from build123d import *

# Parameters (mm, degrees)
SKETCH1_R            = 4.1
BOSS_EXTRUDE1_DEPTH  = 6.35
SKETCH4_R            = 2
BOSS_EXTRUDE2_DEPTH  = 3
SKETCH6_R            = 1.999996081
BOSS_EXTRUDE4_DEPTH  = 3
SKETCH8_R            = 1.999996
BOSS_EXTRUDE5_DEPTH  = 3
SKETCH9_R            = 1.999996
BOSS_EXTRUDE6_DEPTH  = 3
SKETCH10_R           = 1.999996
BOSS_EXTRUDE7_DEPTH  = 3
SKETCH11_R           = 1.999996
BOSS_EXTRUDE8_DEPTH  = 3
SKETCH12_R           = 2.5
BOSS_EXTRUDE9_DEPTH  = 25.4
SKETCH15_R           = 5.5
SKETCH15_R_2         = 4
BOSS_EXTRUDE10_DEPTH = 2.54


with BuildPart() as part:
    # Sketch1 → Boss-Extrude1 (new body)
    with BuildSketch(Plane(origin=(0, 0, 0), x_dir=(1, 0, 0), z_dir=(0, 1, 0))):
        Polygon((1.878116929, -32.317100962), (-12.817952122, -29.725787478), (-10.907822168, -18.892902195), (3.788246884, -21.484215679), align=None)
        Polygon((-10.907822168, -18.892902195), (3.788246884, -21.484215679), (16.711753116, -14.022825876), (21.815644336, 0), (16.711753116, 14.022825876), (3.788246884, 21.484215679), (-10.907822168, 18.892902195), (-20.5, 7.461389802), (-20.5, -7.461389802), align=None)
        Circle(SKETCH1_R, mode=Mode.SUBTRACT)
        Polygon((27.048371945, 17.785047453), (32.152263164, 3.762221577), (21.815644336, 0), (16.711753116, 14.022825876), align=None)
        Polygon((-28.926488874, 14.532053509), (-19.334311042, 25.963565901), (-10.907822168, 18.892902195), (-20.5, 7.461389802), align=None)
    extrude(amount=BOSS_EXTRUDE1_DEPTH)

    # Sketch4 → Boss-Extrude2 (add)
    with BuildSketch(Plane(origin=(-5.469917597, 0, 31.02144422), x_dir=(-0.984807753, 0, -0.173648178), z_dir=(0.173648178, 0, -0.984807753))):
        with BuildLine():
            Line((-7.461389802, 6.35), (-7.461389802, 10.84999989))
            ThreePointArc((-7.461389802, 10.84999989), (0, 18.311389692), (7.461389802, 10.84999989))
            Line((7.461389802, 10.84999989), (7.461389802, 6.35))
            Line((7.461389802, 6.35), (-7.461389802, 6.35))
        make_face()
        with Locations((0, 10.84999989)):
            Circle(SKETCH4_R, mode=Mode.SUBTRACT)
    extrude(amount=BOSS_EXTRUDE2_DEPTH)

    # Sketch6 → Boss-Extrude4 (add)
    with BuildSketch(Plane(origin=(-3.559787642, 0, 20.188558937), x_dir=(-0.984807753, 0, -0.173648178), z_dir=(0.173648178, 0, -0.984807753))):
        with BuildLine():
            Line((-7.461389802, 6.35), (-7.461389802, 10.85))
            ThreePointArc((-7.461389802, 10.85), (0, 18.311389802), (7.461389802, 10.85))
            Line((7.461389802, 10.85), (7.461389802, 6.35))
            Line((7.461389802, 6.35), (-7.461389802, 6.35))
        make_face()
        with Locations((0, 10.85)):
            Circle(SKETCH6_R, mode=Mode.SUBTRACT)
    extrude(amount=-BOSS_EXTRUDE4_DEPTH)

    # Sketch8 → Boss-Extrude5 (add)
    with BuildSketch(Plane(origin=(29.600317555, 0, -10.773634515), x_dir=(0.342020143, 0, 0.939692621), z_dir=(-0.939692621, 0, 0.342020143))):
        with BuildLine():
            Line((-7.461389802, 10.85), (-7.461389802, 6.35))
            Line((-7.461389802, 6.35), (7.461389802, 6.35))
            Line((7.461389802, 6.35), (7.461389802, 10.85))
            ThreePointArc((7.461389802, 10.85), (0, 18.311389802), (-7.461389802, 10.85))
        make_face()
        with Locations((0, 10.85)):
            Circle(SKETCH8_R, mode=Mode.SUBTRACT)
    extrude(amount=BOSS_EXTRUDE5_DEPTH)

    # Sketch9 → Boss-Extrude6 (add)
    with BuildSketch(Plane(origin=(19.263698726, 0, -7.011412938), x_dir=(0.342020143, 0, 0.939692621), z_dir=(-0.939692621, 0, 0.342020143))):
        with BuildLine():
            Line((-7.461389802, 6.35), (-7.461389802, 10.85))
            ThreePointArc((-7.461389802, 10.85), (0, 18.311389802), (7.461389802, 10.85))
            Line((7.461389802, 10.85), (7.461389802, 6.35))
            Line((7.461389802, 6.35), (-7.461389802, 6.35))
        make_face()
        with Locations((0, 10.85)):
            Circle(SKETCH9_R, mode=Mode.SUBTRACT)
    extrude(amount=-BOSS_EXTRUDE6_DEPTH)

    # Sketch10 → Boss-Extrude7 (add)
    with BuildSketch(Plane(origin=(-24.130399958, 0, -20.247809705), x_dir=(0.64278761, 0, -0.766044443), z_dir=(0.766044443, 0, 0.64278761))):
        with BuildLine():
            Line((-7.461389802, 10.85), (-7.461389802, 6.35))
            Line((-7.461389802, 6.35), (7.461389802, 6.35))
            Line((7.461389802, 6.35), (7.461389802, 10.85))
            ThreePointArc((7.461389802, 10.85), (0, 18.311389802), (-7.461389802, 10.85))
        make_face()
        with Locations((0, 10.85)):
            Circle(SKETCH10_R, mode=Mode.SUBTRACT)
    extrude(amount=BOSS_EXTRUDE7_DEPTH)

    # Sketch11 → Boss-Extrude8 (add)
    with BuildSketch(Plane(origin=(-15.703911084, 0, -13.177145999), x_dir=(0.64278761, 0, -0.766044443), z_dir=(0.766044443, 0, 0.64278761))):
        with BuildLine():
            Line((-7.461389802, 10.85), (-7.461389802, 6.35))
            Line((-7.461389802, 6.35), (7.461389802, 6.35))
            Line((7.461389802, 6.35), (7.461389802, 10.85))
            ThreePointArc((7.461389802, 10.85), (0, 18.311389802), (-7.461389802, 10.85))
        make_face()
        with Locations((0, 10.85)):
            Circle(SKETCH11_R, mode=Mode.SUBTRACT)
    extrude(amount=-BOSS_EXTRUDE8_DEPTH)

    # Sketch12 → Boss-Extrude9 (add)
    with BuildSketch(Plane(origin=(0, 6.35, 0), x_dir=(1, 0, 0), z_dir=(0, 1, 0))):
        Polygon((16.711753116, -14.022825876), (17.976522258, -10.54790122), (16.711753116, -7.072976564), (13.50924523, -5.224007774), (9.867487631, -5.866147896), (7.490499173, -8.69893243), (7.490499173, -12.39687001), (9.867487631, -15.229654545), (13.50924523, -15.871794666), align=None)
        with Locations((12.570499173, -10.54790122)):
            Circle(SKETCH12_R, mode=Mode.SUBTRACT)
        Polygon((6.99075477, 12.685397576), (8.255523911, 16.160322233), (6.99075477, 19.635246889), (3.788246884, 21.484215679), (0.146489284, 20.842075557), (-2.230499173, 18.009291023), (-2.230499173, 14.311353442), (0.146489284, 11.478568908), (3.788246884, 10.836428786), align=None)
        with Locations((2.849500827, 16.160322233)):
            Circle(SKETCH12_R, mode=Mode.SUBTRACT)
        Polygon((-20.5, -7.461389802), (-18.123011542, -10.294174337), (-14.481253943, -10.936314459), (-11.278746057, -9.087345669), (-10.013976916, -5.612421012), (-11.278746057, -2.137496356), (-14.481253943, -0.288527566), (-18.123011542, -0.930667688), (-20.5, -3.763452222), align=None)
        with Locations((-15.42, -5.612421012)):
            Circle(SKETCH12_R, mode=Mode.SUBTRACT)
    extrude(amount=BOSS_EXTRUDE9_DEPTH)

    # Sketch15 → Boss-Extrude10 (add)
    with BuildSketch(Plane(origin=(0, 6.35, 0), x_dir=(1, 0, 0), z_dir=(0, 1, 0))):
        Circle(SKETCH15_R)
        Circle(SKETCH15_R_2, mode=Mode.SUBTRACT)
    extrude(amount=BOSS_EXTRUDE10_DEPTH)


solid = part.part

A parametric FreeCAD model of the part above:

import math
import FreeCAD as App
import Part
import Sketcher
Q = App.Units.Quantity


def add_polygon(sketch, points):
    """Adds a closed chain of lines whose ends are joined by coincident constraints."""
    first, n = sketch.GeometryCount, len(points)
    for a, b in zip(points, points[1:] + points[:1]):
        sketch.addGeometry(Part.LineSegment(App.Vector(*a, 0), App.Vector(*b, 0)), False)
    for i in range(n):
        sketch.addConstraint(Sketcher.Constraint("Coincident", first + i, 2, first + (i + 1) % n, 1))

doc = App.newDocument("Part")
body = doc.addObject("PartDesign::Body", "Body")

# Sketch on XZ plane
sketch1 = doc.addObject("Sketcher::SketchObject", "Sketch")
body.addObject(sketch1)
sketch1.AttachmentSupport = (doc.XZ_Plane, [""])
sketch1.MapMode = "FlatFace"
add_polygon(sketch1, [(-12.8, 29.7), (1.9, 32.3), (3.8, 21.5), (16.7, 14), (21.8, 0), (32.2, -3.8), (27, -17.8), (16.7, -14), (3.8, -21.5), (-10.9, -18.9), (-19.3, -26), (-28.9, -14.5), (-20.5, -7.5), (-20.5, 7.5), (-10.9, 18.9)])  # lines 0-14
sketch1.addGeometry(Part.Circle(App.Vector(0, 0, 0), App.Vector(0, 0, 1), 4.1), False)  # 15
sketch1.addConstraint([
    Sketcher.Constraint("Vertical", 12),
    Sketcher.Constraint("Coincident", 15, 3, -1, 1),
    Sketcher.Constraint("Symmetric", 2, 2, 6, 2, -1),
    Sketcher.Constraint("Symmetric", 1, 2, 7, 2, -1),
    Sketcher.Constraint("Symmetric", 8, 2, 13, 2, -1),
    Sketcher.Constraint("PointOnObject", 3, 2, -1),
    Sketcher.Constraint("Perpendicular", 0, 1),
    Sketcher.Constraint("Perpendicular", 4, 5),
    Sketcher.Constraint("Perpendicular", 5, 6),
    Sketcher.Constraint("Perpendicular", 9, 10),
    Sketcher.Constraint("Perpendicular", 10, 11),
    Sketcher.Constraint("Parallel", 1, 14),
    Sketcher.Constraint("Equal", 0, 2),
    Sketcher.Constraint("Equal", 2, 3),
    Sketcher.Constraint("Equal", 1, 4),
    Sketcher.Constraint("Equal", 4, 6),
    Sketcher.Constraint("Equal", 6, 9),
    Sketcher.Constraint("Equal", 8, 10),
    Sketcher.Constraint("Equal", 9, 11),
    Sketcher.Constraint("Equal", 10, 13),
    Sketcher.Constraint("Equal", 11, 14),
    Sketcher.Constraint("Diameter", 15, Q("8.2 mm")),
    Sketcher.Constraint("Angle", 0, Q("10 deg")),
    Sketcher.Constraint("Angle", 2, Q("-30 deg")),
    Sketcher.Constraint("Angle", 3, Q("-70 deg")),
    Sketcher.Constraint("Angle", 9, Q("-140 deg")),
    Sketcher.Constraint("Distance", 1, Q("11 mm")),
    Sketcher.Constraint("DistanceX", 11, 2, -1, 1, Q("20.5 mm")),
    Sketcher.Constraint("DistanceY", 12, 1, 12, 2, Q("14.92278 mm")),
])
pad1 = doc.addObject("PartDesign::Pad", "Pad")
body.addObject(pad1)
pad1.Profile = sketch1
pad1.Length = 6.35
pad1.Reversed = True

# Sketch on an angled plane
sketch2 = doc.addObject("Sketcher::SketchObject", "Sketch001")
body.addObject(sketch2)
sketch2.Placement = App.Placement(App.Vector(-5.469918, 0, 31.021444), App.Rotation(App.Vector(-0.984807753, 0, -0.173648178), App.Vector(0, 1, 0), App.Vector(0.173648178, 0, -0.984807753), "ZXY"))
sketch2.addGeometry([
    Part.LineSegment(App.Vector(-7.5, 10.8, 0), App.Vector(-7.5, 6.4, 0)),  # 0
    Part.LineSegment(App.Vector(-7.5, 6.4, 0), App.Vector(7.5, 6.4, 0)),  # 1
    Part.LineSegment(App.Vector(7.5, 6.4, 0), App.Vector(7.5, 10.8, 0)),  # 2
    Part.ArcOfCircle(Part.Circle(App.Vector(0, 10.8, 0), App.Vector(0, 0, 1), 7.5), math.radians(0), math.radians(180)),  # 3
    Part.Circle(App.Vector(0, 10.8, 0), App.Vector(0, 0, 1), 2),  # 4
], False)
sketch2.addConstraint([
    Sketcher.Constraint("Coincident", 0, 2, 1, 1),
    Sketcher.Constraint("Coincident", 1, 2, 2, 1),
    Sketcher.Constraint("Tangent", 2, 2, 3, 1),
    Sketcher.Constraint("Tangent", 3, 2, 0, 1),
    Sketcher.Constraint("Vertical", 0),
    Sketcher.Constraint("Horizontal", 1),
    Sketcher.Constraint("Vertical", 2),
    Sketcher.Constraint("Coincident", 4, 3, 3, 3),
    Sketcher.Constraint("PointOnObject", 3, 3, -2),
    Sketcher.Constraint("Diameter", 4, Q("4 mm")),
    Sketcher.Constraint("DistanceY", 0, 2, 0, 1, Q("4.5 mm")),
    Sketcher.Constraint("DistanceY", -1, 1, 3, 3, Q("10.85 mm")),
    Sketcher.Constraint("Radius", 3, Q("7.46139 mm")),
])
pad2 = doc.addObject("PartDesign::Pad", "Pad001")
body.addObject(pad2)
pad2.Profile = sketch2
pad2.Length = 3

# Sketch on an angled plane
sketch3 = doc.addObject("Sketcher::SketchObject", "Sketch002")
body.addObject(sketch3)
sketch3.Placement = App.Placement(App.Vector(-3.559788, 0, 20.188559), App.Rotation(App.Vector(-0.984807753, 0, -0.173648178), App.Vector(0, 1, 0), App.Vector(0.173648178, 0, -0.984807753), "ZXY"))
sketch3.addGeometry([
    Part.LineSegment(App.Vector(-7.5, 10.9, 0), App.Vector(-7.5, 6.4, 0)),  # 0
    Part.LineSegment(App.Vector(-7.5, 6.4, 0), App.Vector(7.5, 6.4, 0)),  # 1
    Part.LineSegment(App.Vector(7.5, 6.4, 0), App.Vector(7.5, 10.9, 0)),  # 2
    Part.ArcOfCircle(Part.Circle(App.Vector(0, 10.9, 0), App.Vector(0, 0, 1), 7.5), math.radians(0), math.radians(180)),  # 3
    Part.Circle(App.Vector(0, 10.9, 0), App.Vector(0, 0, 1), 2),  # 4
], False)
sketch3.addConstraint([
    Sketcher.Constraint("Coincident", 0, 2, 1, 1),
    Sketcher.Constraint("Coincident", 1, 2, 2, 1),
    Sketcher.Constraint("Tangent", 2, 2, 3, 1),
    Sketcher.Constraint("Tangent", 3, 2, 0, 1),
    Sketcher.Constraint("Vertical", 0),
    Sketcher.Constraint("Horizontal", 1),
    Sketcher.Constraint("Vertical", 2),
    Sketcher.Constraint("Coincident", 4, 3, 3, 3),
    Sketcher.Constraint("PointOnObject", 3, 3, -2),
    Sketcher.Constraint("DistanceY", 0, 2, 0, 1, Q("4.5 mm")),
    Sketcher.Constraint("DistanceY", -1, 1, 3, 3, Q("10.85 mm")),
    Sketcher.Constraint("Radius", 3, Q("7.46139 mm")),
    Sketcher.Constraint("Diameter", 4, Q("3.999992 mm")),
])
pad3 = doc.addObject("PartDesign::Pad", "Pad002")
body.addObject(pad3)
pad3.Profile = sketch3
pad3.Length = 3
pad3.Reversed = True

# Sketch on an angled plane
sketch4 = doc.addObject("Sketcher::SketchObject", "Sketch003")
body.addObject(sketch4)
sketch4.Placement = App.Placement(App.Vector(29.600318, 0, -10.773635), App.Rotation(App.Vector(0.342020143, 0, 0.939692621), App.Vector(0, 1, 0), App.Vector(-0.939692621, 0, 0.342020143), "ZXY"))
sketch4.addGeometry([
    Part.LineSegment(App.Vector(-7.5, 10.9, 0), App.Vector(-7.5, 6.4, 0)),  # 0
    Part.LineSegment(App.Vector(-7.5, 6.4, 0), App.Vector(7.5, 6.4, 0)),  # 1
    Part.LineSegment(App.Vector(7.5, 6.4, 0), App.Vector(7.5, 10.9, 0)),  # 2
    Part.ArcOfCircle(Part.Circle(App.Vector(0, 10.9, 0), App.Vector(0, 0, 1), 7.5), math.radians(0), math.radians(180)),  # 3
    Part.Circle(App.Vector(0, 10.9, 0), App.Vector(0, 0, 1), 2),  # 4
], False)
sketch4.addConstraint([
    Sketcher.Constraint("Coincident", 0, 2, 1, 1),
    Sketcher.Constraint("Coincident", 1, 2, 2, 1),
    Sketcher.Constraint("Tangent", 2, 2, 3, 1),
    Sketcher.Constraint("Tangent", 3, 2, 0, 1),
    Sketcher.Constraint("Vertical", 0),
    Sketcher.Constraint("Horizontal", 1),
    Sketcher.Constraint("Vertical", 2),
    Sketcher.Constraint("Coincident", 4, 3, 3, 3),
    Sketcher.Constraint("PointOnObject", 3, 3, -2),
    Sketcher.Constraint("DistanceY", 0, 2, 0, 1, Q("4.5 mm")),
    Sketcher.Constraint("DistanceY", -1, 1, 3, 3, Q("10.85 mm")),
    Sketcher.Constraint("Radius", 3, Q("7.46139 mm")),
    Sketcher.Constraint("Diameter", 4, Q("3.999992 mm")),
])
pad4 = doc.addObject("PartDesign::Pad", "Pad003")
body.addObject(pad4)
pad4.Profile = sketch4
pad4.Length = 3

# Sketch on an angled plane
sketch5 = doc.addObject("Sketcher::SketchObject", "Sketch004")
body.addObject(sketch5)
sketch5.Placement = App.Placement(App.Vector(19.263699, 0, -7.011413), App.Rotation(App.Vector(0.342020143, 0, 0.939692621), App.Vector(0, 1, 0), App.Vector(-0.939692621, 0, 0.342020143), "ZXY"))
sketch5.addGeometry([
    Part.LineSegment(App.Vector(-7.5, 10.9, 0), App.Vector(-7.5, 6.4, 0)),  # 0
    Part.LineSegment(App.Vector(-7.5, 6.4, 0), App.Vector(7.5, 6.4, 0)),  # 1
    Part.LineSegment(App.Vector(7.5, 6.4, 0), App.Vector(7.5, 10.9, 0)),  # 2
    Part.ArcOfCircle(Part.Circle(App.Vector(0, 10.9, 0), App.Vector(0, 0, 1), 7.5), math.radians(0), math.radians(180)),  # 3
    Part.Circle(App.Vector(0, 10.9, 0), App.Vector(0, 0, 1), 2),  # 4
], False)
sketch5.addConstraint([
    Sketcher.Constraint("Coincident", 0, 2, 1, 1),
    Sketcher.Constraint("Coincident", 1, 2, 2, 1),
    Sketcher.Constraint("Tangent", 2, 2, 3, 1),
    Sketcher.Constraint("Tangent", 3, 2, 0, 1),
    Sketcher.Constraint("Vertical", 0),
    Sketcher.Constraint("Horizontal", 1),
    Sketcher.Constraint("Vertical", 2),
    Sketcher.Constraint("Coincident", 4, 3, 3, 3),
    Sketcher.Constraint("PointOnObject", 3, 3, -2),
    Sketcher.Constraint("DistanceY", 0, 2, 0, 1, Q("4.5 mm")),
    Sketcher.Constraint("DistanceY", -1, 1, 3, 3, Q("10.85 mm")),
    Sketcher.Constraint("Radius", 3, Q("7.46139 mm")),
    Sketcher.Constraint("Diameter", 4, Q("3.999992 mm")),
])
pad5 = doc.addObject("PartDesign::Pad", "Pad004")
body.addObject(pad5)
pad5.Profile = sketch5
pad5.Length = 3
pad5.Reversed = True

# Sketch on an angled plane
sketch6 = doc.addObject("Sketcher::SketchObject", "Sketch005")
body.addObject(sketch6)
sketch6.Placement = App.Placement(App.Vector(-24.1304, 0, -20.24781), App.Rotation(App.Vector(0.64278761, 0, -0.766044443), App.Vector(0, 1, 0), App.Vector(0.766044443, 0, 0.64278761), "ZXY"))
sketch6.addGeometry([
    Part.LineSegment(App.Vector(-7.5, 10.9, 0), App.Vector(-7.5, 6.4, 0)),  # 0
    Part.LineSegment(App.Vector(-7.5, 6.4, 0), App.Vector(7.5, 6.4, 0)),  # 1
    Part.LineSegment(App.Vector(7.5, 6.4, 0), App.Vector(7.5, 10.9, 0)),  # 2
    Part.ArcOfCircle(Part.Circle(App.Vector(0, 10.9, 0), App.Vector(0, 0, 1), 7.5), math.radians(0), math.radians(180)),  # 3
    Part.Circle(App.Vector(0, 10.9, 0), App.Vector(0, 0, 1), 2),  # 4
], False)
sketch6.addConstraint([
    Sketcher.Constraint("Coincident", 0, 2, 1, 1),
    Sketcher.Constraint("Coincident", 1, 2, 2, 1),
    Sketcher.Constraint("Tangent", 2, 2, 3, 1),
    Sketcher.Constraint("Tangent", 3, 2, 0, 1),
    Sketcher.Constraint("Vertical", 0),
    Sketcher.Constraint("Horizontal", 1),
    Sketcher.Constraint("Vertical", 2),
    Sketcher.Constraint("Coincident", 4, 3, 3, 3),
    Sketcher.Constraint("PointOnObject", 3, 3, -2),
    Sketcher.Constraint("DistanceY", 0, 2, 0, 1, Q("4.5 mm")),
    Sketcher.Constraint("DistanceY", -1, 1, 3, 3, Q("10.85 mm")),
    Sketcher.Constraint("Radius", 3, Q("7.46139 mm")),
    Sketcher.Constraint("Diameter", 4, Q("3.999992 mm")),
])
pad6 = doc.addObject("PartDesign::Pad", "Pad005")
body.addObject(pad6)
pad6.Profile = sketch6
pad6.Length = 3

# Sketch on an angled plane
sketch7 = doc.addObject("Sketcher::SketchObject", "Sketch006")
body.addObject(sketch7)
sketch7.Placement = App.Placement(App.Vector(-15.703911, 0, -13.177146), App.Rotation(App.Vector(0.64278761, 0, -0.766044443), App.Vector(0, 1, 0), App.Vector(0.766044443, 0, 0.64278761), "ZXY"))
sketch7.addGeometry([
    Part.LineSegment(App.Vector(-7.5, 10.9, 0), App.Vector(-7.5, 6.4, 0)),  # 0
    Part.LineSegment(App.Vector(-7.5, 6.4, 0), App.Vector(7.5, 6.4, 0)),  # 1
    Part.LineSegment(App.Vector(7.5, 6.4, 0), App.Vector(7.5, 10.9, 0)),  # 2
    Part.ArcOfCircle(Part.Circle(App.Vector(0, 10.9, 0), App.Vector(0, 0, 1), 7.5), math.radians(0), math.radians(180)),  # 3
    Part.Circle(App.Vector(0, 10.9, 0), App.Vector(0, 0, 1), 2),  # 4
], False)
sketch7.addConstraint([
    Sketcher.Constraint("Coincident", 0, 2, 1, 1),
    Sketcher.Constraint("Coincident", 1, 2, 2, 1),
    Sketcher.Constraint("Tangent", 2, 2, 3, 1),
    Sketcher.Constraint("Tangent", 3, 2, 0, 1),
    Sketcher.Constraint("Vertical", 0),
    Sketcher.Constraint("Horizontal", 1),
    Sketcher.Constraint("Vertical", 2),
    Sketcher.Constraint("Coincident", 4, 3, 3, 3),
    Sketcher.Constraint("PointOnObject", 3, 3, -2),
    Sketcher.Constraint("DistanceY", 0, 2, 0, 1, Q("4.5 mm")),
    Sketcher.Constraint("DistanceY", -1, 1, 3, 3, Q("10.85 mm")),
    Sketcher.Constraint("Radius", 3, Q("7.46139 mm")),
    Sketcher.Constraint("Diameter", 4, Q("3.999992 mm")),
])
pad7 = doc.addObject("PartDesign::Pad", "Pad006")
body.addObject(pad7)
pad7.Profile = sketch7
pad7.Length = 3
pad7.Reversed = True

# Sketch on XZ plane
sketch8 = doc.addObject("Sketcher::SketchObject", "Sketch007")
body.addObject(sketch8)
sketch8.AttachmentSupport = (doc.XZ_Plane, [""])
sketch8.MapMode = "FlatFace"
sketch8.AttachmentOffset = App.Placement(App.Vector(0, 0, -6.35), App.Rotation())
add_polygon(sketch8, [(16.7, 14), (18, 10.5), (16.7, 7.1), (13.5, 5.2), (9.9, 5.9), (7.5, 8.7), (7.5, 12.4), (9.9, 15.2), (13.5, 15.9)])  # lines 0-8
sketch8.addGeometry(Part.Circle(App.Vector(12.6, 10.5, 0), App.Vector(0, 0, 1), 2.5), False)  # 9
add_polygon(sketch8, [(7, -12.7), (8.3, -16.2), (7, -19.6), (3.8, -21.5), (0.1, -20.8), (-2.2, -18), (-2.2, -14.3), (0.1, -11.5), (3.8, -10.8)])  # lines 10-18
sketch8.addGeometry(Part.Circle(App.Vector(2.8, -16.2, 0), App.Vector(0, 0, 1), 2.5), False)  # 19
add_polygon(sketch8, [(-20.5, 7.5), (-18.1, 10.3), (-14.5, 10.9), (-11.3, 9.1), (-10, 5.6), (-11.3, 2.1), (-14.5, 0.3), (-18.1, 0.9), (-20.5, 3.8)])  # lines 20-28
sketch8.addGeometry(Part.Circle(App.Vector(-15.4, 5.6, 0), App.Vector(0, 0, 1), 2.5), False)  # 29
sketch8.addConstraint([
    Sketcher.Constraint("Vertical", 5),
    Sketcher.Constraint("Vertical", 15),
    Sketcher.Constraint("Vertical", 28),
    Sketcher.Constraint("Equal", 9, 19),
    Sketcher.Constraint("Equal", 19, 29),
    Sketcher.Constraint("Parallel", 0, 10),
    Sketcher.Constraint("Parallel", 1, 11),
    Sketcher.Constraint("Parallel", 2, 12),
    Sketcher.Constraint("Parallel", 3, 13),
    Sketcher.Constraint("Parallel", 4, 14),
    Sketcher.Constraint("Parallel", 6, 16),
    Sketcher.Constraint("Parallel", 7, 17),
    Sketcher.Constraint("Parallel", 8, 18),
    Sketcher.Constraint("Parallel", 16, 20),
    Sketcher.Constraint("Parallel", 17, 21),
    Sketcher.Constraint("Parallel", 18, 22),
    Sketcher.Constraint("Parallel", 10, 23),
    Sketcher.Constraint("Parallel", 11, 24),
    Sketcher.Constraint("Parallel", 12, 25),
    Sketcher.Constraint("Parallel", 13, 26),
    Sketcher.Constraint("Parallel", 14, 27),
    Sketcher.Constraint("Horizontal", 9, 3, 0, 2),
    Sketcher.Constraint("Horizontal", 19, 3, 10, 2),
    Sketcher.Constraint("Horizontal", 29, 3, 23, 2),
    Sketcher.Constraint("Vertical", 3, 2, 6, 2),
    Sketcher.Constraint("Vertical", 2, 2, 7, 2),
    Sketcher.Constraint("Vertical", 1, 2, 8, 2),
    Sketcher.Constraint("Vertical", 13, 2, 16, 2),
    Sketcher.Constraint("Vertical", 12, 2, 17, 2),
    Sketcher.Constraint("Vertical", 11, 2, 18, 2),
    Sketcher.Constraint("Vertical", 22, 2, 24, 2),
    Sketcher.Constraint("Vertical", 21, 2, 25, 2),
    Sketcher.Constraint("Vertical", 20, 2, 26, 2),
    Sketcher.Constraint("Equal", 5, 15),
    Sketcher.Constraint("Equal", 15, 28),
    Sketcher.Constraint("Equal", 0, 1),
    Sketcher.Constraint("Equal", 1, 2),
    Sketcher.Constraint("Equal", 2, 3),
    Sketcher.Constraint("Equal", 3, 4),
    Sketcher.Constraint("Equal", 4, 6),
    Sketcher.Constraint("Equal", 6, 7),
    Sketcher.Constraint("Equal", 7, 8),
    Sketcher.Constraint("Equal", 8, 10),
    Sketcher.Constraint("Equal", 11, 12),
    Sketcher.Constraint("Equal", 12, 13),
    Sketcher.Constraint("Equal", 18, 20),
    Sketcher.Constraint("Equal", 20, 21),
    Sketcher.Constraint("Equal", 21, 22),
    Sketcher.Constraint("Diameter", 9, Q("5 mm")),
    Sketcher.Constraint("Angle", 0, Q("-70 deg")),
    Sketcher.Constraint("Angle", 2, Q("-150 deg")),
    Sketcher.Constraint("Angle", 3, Q("170 deg")),
    Sketcher.Constraint("Angle", 4, Q("130 deg")),
    Sketcher.Constraint("DistanceX", 27, 2, -1, 1, Q("20.5 mm")),
    Sketcher.Constraint("DistanceX", 29, 3, -1, 1, Q("15.42 mm")),
    Sketcher.Constraint("DistanceX", 4, 2, 9, 3, Q("5.08 mm")),
    Sketcher.Constraint("DistanceX", 14, 2, 19, 3, Q("5.08 mm")),
    Sketcher.Constraint("DistanceX", 19, 3, 9, 3, Q("9.720998 mm")),
    Sketcher.Constraint("DistanceX", -1, 1, 9, 3, Q("12.570499 mm")),
    Sketcher.Constraint("DistanceY", -1, 1, 9, 3, Q("10.547901 mm")),
    Sketcher.Constraint("DistanceY", 19, 3, 1, 2, Q("23.233299 mm")),
    Sketcher.Constraint("DistanceY", 5, 1, 5, 2, Q("3.697938 mm")),
    Sketcher.Constraint("DistanceY", -1, 1, 29, 3, Q("5.612421 mm")),
])
pad8 = doc.addObject("PartDesign::Pad", "Pad007")
body.addObject(pad8)
pad8.Profile = sketch8
pad8.Length = 25.4
pad8.Reversed = True

# Sketch on XZ plane
sketch9 = doc.addObject("Sketcher::SketchObject", "Sketch008")
body.addObject(sketch9)
sketch9.AttachmentSupport = (doc.XZ_Plane, [""])
sketch9.MapMode = "FlatFace"
sketch9.AttachmentOffset = App.Placement(App.Vector(0, 0, -6.35), App.Rotation())
sketch9.addGeometry([
    Part.Circle(App.Vector(0, 0, 0), App.Vector(0, 0, 1), 5.5),
    Part.Circle(App.Vector(0, 0, 0), App.Vector(0, 0, 1), 4),
], False)
sketch9.addConstraint([
    Sketcher.Constraint("Coincident", 0, 3, -1, 1),
    Sketcher.Constraint("Coincident", 1, 3, -1, 1),
    Sketcher.Constraint("Diameter", 0, Q("11 mm")),
    Sketcher.Constraint("Diameter", 1, Q("8 mm")),
])
pad9 = doc.addObject("PartDesign::Pad", "Pad008")
body.addObject(pad9)
pad9.Profile = sketch9
pad9.Length = 2.54
pad9.Reversed = True

doc.recompute()
